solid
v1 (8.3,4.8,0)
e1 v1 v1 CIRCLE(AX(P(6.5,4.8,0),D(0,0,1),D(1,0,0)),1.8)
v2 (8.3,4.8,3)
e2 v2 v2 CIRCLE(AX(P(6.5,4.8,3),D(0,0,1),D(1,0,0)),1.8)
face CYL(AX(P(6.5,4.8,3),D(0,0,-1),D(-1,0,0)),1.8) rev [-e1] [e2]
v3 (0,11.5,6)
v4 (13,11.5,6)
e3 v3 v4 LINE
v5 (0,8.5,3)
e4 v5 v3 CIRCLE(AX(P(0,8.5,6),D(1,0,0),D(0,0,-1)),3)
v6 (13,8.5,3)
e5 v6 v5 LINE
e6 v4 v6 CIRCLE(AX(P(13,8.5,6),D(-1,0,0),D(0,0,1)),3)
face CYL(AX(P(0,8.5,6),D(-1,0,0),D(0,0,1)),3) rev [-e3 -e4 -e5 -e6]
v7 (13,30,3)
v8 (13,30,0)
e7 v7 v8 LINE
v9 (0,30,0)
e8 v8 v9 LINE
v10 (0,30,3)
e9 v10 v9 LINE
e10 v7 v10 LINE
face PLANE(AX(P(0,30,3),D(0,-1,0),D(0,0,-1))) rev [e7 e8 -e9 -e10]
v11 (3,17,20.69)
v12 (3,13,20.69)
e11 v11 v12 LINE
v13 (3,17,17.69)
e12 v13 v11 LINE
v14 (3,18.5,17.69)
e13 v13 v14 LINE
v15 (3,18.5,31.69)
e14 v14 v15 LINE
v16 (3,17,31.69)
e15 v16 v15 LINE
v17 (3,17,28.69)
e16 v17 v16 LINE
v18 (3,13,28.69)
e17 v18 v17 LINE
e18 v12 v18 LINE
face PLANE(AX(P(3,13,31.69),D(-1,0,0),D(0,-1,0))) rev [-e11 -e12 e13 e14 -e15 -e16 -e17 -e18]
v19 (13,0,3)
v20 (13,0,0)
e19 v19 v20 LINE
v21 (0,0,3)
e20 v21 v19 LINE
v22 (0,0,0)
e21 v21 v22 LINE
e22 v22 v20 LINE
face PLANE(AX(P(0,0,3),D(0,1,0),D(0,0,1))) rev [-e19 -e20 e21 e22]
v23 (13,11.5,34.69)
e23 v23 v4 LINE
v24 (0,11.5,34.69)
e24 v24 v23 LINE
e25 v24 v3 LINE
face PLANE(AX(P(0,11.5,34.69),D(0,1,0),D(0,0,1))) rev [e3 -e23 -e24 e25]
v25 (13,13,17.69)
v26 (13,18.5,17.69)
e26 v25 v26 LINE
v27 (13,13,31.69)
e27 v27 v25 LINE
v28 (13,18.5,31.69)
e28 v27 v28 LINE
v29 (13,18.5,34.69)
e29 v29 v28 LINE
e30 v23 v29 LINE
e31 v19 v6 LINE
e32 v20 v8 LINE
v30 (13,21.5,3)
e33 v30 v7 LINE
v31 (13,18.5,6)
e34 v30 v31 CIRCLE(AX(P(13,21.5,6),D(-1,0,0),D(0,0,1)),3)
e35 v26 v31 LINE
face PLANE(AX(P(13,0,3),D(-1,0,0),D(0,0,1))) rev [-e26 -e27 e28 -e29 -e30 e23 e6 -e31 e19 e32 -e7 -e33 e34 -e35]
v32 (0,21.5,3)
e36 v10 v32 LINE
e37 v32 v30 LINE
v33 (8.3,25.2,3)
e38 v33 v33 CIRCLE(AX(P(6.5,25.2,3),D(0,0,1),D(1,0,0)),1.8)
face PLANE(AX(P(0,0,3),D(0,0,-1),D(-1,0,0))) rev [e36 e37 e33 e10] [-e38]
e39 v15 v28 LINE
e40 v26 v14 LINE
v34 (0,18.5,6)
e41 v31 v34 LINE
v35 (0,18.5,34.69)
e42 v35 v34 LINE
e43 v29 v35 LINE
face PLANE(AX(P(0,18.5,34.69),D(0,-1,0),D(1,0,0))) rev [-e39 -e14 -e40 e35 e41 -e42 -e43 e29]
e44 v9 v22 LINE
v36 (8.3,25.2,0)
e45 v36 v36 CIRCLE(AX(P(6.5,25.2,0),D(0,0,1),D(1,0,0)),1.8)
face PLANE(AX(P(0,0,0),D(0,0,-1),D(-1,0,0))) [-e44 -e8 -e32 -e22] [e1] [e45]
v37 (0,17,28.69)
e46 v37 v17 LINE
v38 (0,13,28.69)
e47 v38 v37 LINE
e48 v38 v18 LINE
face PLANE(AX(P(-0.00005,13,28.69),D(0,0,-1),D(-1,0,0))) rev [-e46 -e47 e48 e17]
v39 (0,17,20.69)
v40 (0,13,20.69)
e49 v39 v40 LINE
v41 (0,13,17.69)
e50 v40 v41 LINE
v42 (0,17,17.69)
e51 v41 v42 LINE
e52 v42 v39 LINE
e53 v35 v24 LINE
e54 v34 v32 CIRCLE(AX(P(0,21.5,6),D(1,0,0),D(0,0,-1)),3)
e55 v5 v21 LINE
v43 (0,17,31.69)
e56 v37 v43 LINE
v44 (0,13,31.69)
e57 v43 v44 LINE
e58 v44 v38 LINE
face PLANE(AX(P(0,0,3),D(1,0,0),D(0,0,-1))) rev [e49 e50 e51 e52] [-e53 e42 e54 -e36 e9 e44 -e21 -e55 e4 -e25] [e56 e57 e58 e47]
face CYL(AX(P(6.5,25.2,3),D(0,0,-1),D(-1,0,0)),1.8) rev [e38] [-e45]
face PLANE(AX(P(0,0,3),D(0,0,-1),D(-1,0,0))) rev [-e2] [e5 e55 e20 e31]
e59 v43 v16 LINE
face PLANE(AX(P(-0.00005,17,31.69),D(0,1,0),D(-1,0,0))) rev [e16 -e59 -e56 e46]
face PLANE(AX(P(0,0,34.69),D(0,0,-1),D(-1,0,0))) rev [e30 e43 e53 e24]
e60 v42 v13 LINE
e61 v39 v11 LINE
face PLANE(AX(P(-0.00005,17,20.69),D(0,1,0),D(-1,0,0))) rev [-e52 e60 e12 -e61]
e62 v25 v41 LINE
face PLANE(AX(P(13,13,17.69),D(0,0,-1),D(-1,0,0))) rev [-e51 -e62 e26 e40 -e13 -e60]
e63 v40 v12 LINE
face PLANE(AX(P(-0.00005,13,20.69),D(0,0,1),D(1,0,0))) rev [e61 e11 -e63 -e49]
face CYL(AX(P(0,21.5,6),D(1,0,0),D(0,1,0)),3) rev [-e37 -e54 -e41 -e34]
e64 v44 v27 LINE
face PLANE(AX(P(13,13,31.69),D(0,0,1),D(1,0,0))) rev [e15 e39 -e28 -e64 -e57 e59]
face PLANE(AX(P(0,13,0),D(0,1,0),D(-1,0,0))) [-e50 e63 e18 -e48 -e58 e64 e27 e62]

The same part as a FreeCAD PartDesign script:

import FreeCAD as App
import Part
import Sketcher

V = App.Vector


def edges_at(feature, points):
    """Names of the edges that pass closest to the given points."""
    edges = feature.Shape.Edges
    near = lambda p: min(range(len(edges)), key=lambda i: edges[i].distToShape(Part.Vertex(*p))[0])
    return sorted({f"Edge{near(p) + 1}" for p in points})


def add_polygon(sketch, points):
    """Adds a closed chain of lines whose ends are joined by coincident constraints."""
    first, n = sketch.GeometryCount, len(points)
    for a, b in zip(points, points[1:] + points[:1]):
        sketch.addGeometry(Part.LineSegment(App.Vector(*a, 0), App.Vector(*b, 0)), False)
    for i in range(n):
        sketch.addConstraint(Sketcher.Constraint("Coincident", first + i, 2, first + (i + 1) % n, 1))

doc = App.newDocument("Part")
body = doc.addObject("PartDesign::Body", "Body")

# Sketch on XY plane
sketch1 = body.newObject("Sketcher::SketchObject", "Sketch")
sketch1.AttachmentSupport = (doc.getObject("XY_Plane"), [""])
sketch1.MapMode = "FlatFace"
add_polygon(sketch1, [(0, 30), (0, 0), (13, 0), (13, 30)])  # lines 0-3
sketch1.addGeometry(Part.Circle(V(6.5, 4.8, 0), V(0, 0, 1), 1.8), False)  # 4
sketch1.addGeometry(Part.Circle(V(6.5, 25.2, 0), V(0, 0, 1), 1.8), False)  # 5
sketch1.addConstraint(Sketcher.Constraint("Vertical", 0))
sketch1.addConstraint(Sketcher.Constraint("Horizontal", 1))
sketch1.addConstraint(Sketcher.Constraint("Vertical", 2))
sketch1.addConstraint(Sketcher.Constraint("Horizontal", 3))
sketch1.addConstraint(Sketcher.Constraint("Coincident", 0, 2, -1, 1))
sketch1.addConstraint(Sketcher.Constraint("Equal", 4, 5))
sketch1.addConstraint(Sketcher.Constraint("Vertical", 4, 3, 5, 3))
sketch1.addConstraint(Sketcher.Constraint("Diameter", 4, 3.6))
sketch1.addConstraint(Sketcher.Constraint("DistanceX", 1, 1, 1, 2, 13.0))
sketch1.addConstraint(Sketcher.Constraint("DistanceY", 0, 2, 0, 1, 30.0))
sketch1.addConstraint(Sketcher.Constraint("DistanceX", -1, 1, 4, 3, 6.5))
sketch1.addConstraint(Sketcher.Constraint("DistanceY", -1, 1, 4, 3, 4.8))
sketch1.addConstraint(Sketcher.Constraint("DistanceY", -1, 1, 5, 3, 25.2))
pad1 = body.newObject("PartDesign::Pad", "Pad")
pad1.Profile = sketch1
pad1.Length = 3

# Sketch on XY plane
sketch2 = body.newObject("Sketcher::SketchObject", "Sketch001")
sketch2.AttachmentSupport = (doc.getObject("XY_Plane"), [""])
sketch2.MapMode = "FlatFace"
sketch2.AttachmentOffset = App.Placement(V(0, 0, 3), App.Rotation())
add_polygon(sketch2, [(0, 18), (0, 12), (13, 12), (13, 18)])  # lines 0-3
sketch2.addConstraint(Sketcher.Constraint("Vertical", 0))
sketch2.addConstraint(Sketcher.Constraint("Horizontal", 1))
sketch2.addConstraint(Sketcher.Constraint("Vertical", 2))
sketch2.addConstraint(Sketcher.Constraint("Horizontal", 3))
sketch2.addConstraint(Sketcher.Constraint("PointOnObject", 0, 2, -2))
sketch2.addConstraint(Sketcher.Constraint("DistanceX", 1, 1, 1, 2, 13.0))
sketch2.addConstraint(Sketcher.Constraint("DistanceY", 0, 2, 0, 1, 7.0))
sketch2.addConstraint(Sketcher.Constraint("DistanceY", -1, 1, 0, 2, 11.5))
pad2 = body.newObject("PartDesign::Pad", "Pad001")
pad2.Profile = sketch2
pad2.Length = 31.69

# Sketch on XZ plane
sketch3 = body.newObject("Sketcher::SketchObject", "Sketch002")
sketch3.AttachmentSupport = (doc.getObject("XZ_Plane"), [""])
sketch3.MapMode = "FlatFace"
sketch3.AttachmentOffset = App.Placement(V(0, 0, -18.5), App.Rotation())
add_polygon(sketch3, [(3, 18), (3, 32), (13, 32), (13, 18)])  # lines 0-3
sketch3.addConstraint(Sketcher.Constraint("Vertical", 0))
sketch3.addConstraint(Sketcher.Constraint("Horizontal", 1))
sketch3.addConstraint(Sketcher.Constraint("Vertical", 2))
sketch3.addConstraint(Sketcher.Constraint("Horizontal", 3))
sketch3.addConstraint(Sketcher.Constraint("DistanceX", 1, 1, 1, 2, 10.0))
sketch3.addConstraint(Sketcher.Constraint("DistanceY", 0, 1, 0, 2, 14.0))
sketch3.addConstraint(Sketcher.Constraint("DistanceX", -1, 1, 0, 2, 3.0))
sketch3.addConstraint(Sketcher.Constraint("DistanceY", -1, 1, 0, 2, 31.69))
pocket1 = body.newObject("PartDesign::Pocket", "Pocket")
pocket1.Profile = sketch3
pocket1.Length = 5.5
pocket1.Reversed = True

# Sketch on YZ plane
sketch4 = body.newObject("Sketcher::SketchObject", "Sketch003")
sketch4.AttachmentSupport = (doc.getObject("YZ_Plane"), [""])
sketch4.MapMode = "FlatFace"
sketch4.AttachmentOffset = App.Placement(V(0, 0, 3), App.Rotation())
add_polygon(sketch4, [(17, 31.7), (13, 31.7), (13, 28.7), (17, 28.7)])  # lines 0-3
add_polygon(sketch4, [(17, 20.7), (13, 20.7), (13, 17.7), (17, 17.7)])  # lines 4-7
sketch4.addConstraint(Sketcher.Constraint("Horizontal", 0))
sketch4.addConstraint(Sketcher.Constraint("Vertical", 1))
sketch4.addConstraint(Sketcher.Constraint("Horizontal", 2))
sketch4.addConstraint(Sketcher.Constraint("Vertical", 3))
sketch4.addConstraint(Sketcher.Constraint("Horizontal", 4))
sketch4.addConstraint(Sketcher.Constraint("Vertical", 5))
sketch4.addConstraint(Sketcher.Constraint("Horizontal", 6))
sketch4.addConstraint(Sketcher.Constraint("Vertical", 7))
sketch4.addConstraint(Sketcher.Constraint("Vertical", 1, 2, 4, 2))
sketch4.addConstraint(Sketcher.Constraint("Vertical", 3, 2, 6, 2))
sketch4.addConstraint(Sketcher.Constraint("Equal", 3, 5))
sketch4.addConstraint(Sketcher.Constraint("DistanceX", 0, 2, 0, 1, 4.0))
sketch4.addConstraint(Sketcher.Constraint("DistanceY", 1, 2, 1, 1, 3.0))
sketch4.addConstraint(Sketcher.Constraint("DistanceX", -1, 1, 0, 2, 13.0))
sketch4.addConstraint(Sketcher.Constraint("DistanceY", 4, 2, 1, 2, 8.0))
sketch4.addConstraint(Sketcher.Constraint("DistanceY", -1, 1, 0, 2, 31.69))
pocket2 = body.newObject("PartDesign::Pocket", "Pocket001")
pocket2.Profile = sketch4
pocket2.Type = "ThroughAll"
doc.recompute()

fillet = body.newObject("PartDesign::Fillet", "Fillet")
fillet.Base = (pocket2, edges_at(pocket2, [(6.5, 11.5, 3), (6.5, 18.5, 3)]))
fillet.Radius = 3

doc.recompute()
